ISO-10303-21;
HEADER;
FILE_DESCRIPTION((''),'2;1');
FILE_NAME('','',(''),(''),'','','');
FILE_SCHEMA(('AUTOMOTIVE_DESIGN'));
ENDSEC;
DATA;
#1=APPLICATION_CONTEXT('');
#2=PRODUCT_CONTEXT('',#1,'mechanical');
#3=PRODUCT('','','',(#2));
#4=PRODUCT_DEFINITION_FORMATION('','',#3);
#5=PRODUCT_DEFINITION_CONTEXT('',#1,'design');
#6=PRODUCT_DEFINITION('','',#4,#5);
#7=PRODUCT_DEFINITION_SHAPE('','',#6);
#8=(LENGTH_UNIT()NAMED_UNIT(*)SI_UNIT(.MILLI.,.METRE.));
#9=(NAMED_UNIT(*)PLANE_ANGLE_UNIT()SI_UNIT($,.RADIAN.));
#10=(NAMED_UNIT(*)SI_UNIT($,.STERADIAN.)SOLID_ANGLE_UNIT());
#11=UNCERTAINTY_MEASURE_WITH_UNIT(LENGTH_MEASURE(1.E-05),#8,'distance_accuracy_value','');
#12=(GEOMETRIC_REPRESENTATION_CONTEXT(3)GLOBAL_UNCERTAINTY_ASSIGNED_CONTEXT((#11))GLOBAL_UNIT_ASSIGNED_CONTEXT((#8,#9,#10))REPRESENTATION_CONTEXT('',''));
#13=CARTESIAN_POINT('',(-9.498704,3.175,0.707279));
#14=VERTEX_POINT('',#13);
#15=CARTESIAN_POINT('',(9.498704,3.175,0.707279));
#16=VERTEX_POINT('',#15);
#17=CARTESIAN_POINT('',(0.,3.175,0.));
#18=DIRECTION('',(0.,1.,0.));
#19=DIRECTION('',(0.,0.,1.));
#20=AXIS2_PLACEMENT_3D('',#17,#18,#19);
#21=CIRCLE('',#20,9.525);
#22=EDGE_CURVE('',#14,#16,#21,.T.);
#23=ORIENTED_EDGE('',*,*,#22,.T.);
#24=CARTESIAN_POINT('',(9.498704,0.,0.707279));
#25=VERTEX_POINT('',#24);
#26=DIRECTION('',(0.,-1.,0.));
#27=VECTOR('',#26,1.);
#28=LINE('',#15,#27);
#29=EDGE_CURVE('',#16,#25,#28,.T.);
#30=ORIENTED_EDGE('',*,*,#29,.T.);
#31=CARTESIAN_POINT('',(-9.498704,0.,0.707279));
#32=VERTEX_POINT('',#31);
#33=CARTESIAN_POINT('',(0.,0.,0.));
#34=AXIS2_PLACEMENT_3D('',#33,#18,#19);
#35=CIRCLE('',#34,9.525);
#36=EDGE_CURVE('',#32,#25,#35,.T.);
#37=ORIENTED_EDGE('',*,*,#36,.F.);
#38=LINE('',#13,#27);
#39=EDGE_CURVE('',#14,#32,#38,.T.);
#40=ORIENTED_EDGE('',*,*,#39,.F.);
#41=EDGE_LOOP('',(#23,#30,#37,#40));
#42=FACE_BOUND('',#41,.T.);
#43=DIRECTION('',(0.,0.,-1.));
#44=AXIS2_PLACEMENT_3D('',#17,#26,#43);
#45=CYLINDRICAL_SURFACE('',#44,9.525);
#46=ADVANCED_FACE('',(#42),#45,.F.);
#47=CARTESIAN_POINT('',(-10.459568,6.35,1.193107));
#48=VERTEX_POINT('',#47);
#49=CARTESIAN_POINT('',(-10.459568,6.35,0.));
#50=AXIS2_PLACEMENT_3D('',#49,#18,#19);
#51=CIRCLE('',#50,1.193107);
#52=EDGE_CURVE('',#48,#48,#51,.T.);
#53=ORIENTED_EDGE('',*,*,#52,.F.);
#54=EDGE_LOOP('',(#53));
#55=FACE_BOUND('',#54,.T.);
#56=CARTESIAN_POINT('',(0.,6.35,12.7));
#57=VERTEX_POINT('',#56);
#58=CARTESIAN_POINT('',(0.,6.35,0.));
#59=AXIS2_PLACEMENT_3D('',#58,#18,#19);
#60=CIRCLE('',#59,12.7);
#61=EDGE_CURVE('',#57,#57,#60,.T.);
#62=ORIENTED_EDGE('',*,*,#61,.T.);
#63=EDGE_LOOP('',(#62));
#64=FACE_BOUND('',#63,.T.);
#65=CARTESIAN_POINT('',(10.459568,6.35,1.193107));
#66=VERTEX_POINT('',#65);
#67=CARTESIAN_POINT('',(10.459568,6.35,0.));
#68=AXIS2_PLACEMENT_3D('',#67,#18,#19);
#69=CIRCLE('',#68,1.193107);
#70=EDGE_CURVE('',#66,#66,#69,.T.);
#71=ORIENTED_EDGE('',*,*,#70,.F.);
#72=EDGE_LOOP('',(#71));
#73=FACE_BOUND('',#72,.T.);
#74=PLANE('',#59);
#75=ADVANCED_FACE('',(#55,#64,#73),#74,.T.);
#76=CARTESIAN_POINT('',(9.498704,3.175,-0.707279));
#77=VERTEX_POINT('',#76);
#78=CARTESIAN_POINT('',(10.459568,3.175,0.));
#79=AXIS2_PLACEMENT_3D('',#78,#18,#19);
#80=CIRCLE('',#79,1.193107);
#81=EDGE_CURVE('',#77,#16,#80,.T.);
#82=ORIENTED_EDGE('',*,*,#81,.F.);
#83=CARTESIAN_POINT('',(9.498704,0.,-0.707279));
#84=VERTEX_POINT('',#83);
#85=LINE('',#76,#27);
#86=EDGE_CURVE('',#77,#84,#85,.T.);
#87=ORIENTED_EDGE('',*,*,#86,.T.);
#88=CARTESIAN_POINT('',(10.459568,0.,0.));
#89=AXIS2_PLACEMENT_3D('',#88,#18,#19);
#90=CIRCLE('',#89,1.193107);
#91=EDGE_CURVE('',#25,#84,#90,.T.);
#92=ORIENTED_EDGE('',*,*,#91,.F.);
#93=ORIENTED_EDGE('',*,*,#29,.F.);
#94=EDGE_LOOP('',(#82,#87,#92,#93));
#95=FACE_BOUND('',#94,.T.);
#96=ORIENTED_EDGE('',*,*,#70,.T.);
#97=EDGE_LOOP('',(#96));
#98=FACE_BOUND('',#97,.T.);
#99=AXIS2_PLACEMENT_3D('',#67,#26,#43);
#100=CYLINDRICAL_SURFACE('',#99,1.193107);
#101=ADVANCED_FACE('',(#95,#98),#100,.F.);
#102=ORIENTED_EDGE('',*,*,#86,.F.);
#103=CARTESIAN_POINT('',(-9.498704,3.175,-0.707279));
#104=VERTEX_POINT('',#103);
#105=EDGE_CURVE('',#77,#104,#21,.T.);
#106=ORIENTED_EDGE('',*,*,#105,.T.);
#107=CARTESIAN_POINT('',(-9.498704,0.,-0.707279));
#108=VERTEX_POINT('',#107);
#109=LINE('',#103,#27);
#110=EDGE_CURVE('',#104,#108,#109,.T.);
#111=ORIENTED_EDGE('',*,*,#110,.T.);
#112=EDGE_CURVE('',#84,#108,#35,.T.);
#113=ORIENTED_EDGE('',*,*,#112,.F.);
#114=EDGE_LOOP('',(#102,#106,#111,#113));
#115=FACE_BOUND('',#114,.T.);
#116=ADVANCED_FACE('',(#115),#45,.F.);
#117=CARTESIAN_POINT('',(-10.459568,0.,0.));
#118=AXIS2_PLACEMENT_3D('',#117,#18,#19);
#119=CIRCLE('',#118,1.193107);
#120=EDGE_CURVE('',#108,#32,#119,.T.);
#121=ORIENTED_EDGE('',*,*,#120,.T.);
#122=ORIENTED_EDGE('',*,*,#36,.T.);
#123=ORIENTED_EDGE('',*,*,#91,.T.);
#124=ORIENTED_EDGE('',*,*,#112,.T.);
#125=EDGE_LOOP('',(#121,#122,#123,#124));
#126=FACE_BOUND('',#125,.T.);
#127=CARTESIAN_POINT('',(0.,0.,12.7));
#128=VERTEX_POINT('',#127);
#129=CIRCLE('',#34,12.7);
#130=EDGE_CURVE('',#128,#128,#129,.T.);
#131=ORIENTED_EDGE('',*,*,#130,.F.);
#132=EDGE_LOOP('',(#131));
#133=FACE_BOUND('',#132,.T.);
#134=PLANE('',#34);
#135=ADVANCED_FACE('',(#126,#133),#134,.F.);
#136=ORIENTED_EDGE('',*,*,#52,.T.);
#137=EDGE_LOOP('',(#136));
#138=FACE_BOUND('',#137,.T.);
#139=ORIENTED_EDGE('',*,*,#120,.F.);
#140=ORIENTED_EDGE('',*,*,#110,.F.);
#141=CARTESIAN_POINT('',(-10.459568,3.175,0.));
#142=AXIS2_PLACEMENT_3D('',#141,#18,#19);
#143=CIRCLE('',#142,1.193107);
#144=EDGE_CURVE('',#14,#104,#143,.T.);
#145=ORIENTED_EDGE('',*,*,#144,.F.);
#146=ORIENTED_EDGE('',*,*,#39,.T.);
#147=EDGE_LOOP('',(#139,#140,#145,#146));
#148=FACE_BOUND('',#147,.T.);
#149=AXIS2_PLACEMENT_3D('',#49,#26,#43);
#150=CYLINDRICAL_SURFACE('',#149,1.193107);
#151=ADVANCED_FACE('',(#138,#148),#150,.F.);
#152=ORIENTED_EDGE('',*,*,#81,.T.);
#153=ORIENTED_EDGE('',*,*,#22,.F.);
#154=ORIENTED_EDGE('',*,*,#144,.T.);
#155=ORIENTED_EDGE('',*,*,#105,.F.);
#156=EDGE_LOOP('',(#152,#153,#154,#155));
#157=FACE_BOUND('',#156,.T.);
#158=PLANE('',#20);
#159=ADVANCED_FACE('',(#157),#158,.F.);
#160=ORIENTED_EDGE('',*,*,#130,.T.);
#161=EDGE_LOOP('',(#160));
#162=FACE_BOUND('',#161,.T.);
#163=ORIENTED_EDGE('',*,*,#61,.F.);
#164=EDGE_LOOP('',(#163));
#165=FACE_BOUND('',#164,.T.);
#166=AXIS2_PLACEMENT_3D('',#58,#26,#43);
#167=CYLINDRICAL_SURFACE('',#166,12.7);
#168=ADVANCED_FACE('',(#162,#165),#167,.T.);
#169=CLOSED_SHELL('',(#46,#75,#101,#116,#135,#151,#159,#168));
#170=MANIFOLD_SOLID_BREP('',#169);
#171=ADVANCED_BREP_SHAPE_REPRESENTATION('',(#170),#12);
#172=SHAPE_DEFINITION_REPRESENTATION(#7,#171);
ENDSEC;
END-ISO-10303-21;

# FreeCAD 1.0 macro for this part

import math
import FreeCAD as App
import Part
import Sketcher
from FreeCAD import Vector
Q = App.Units.Quantity

doc = App.newDocument("Part")
body = doc.addObject("PartDesign::Body", "Body")

# Sketch on XZ plane
sketch1 = body.newObject("Sketcher::SketchObject", "Sketch")
sketch1.AttachmentSupport = (doc.getObject("XZ_Plane"), [""])
sketch1.MapMode = "FlatFace"
sketch1.addGeometry(Part.Circle(Vector(0, 0, 0), Vector(0, 0, 1), 13), False)
sketch1.addConstraint([
    Sketcher.Constraint("Coincident", 0, 3, -1, 1),
    Sketcher.Constraint("Diameter", 0, Q("1 in")),
])
pad1 = body.newObject("PartDesign::Pad", "Pad")
pad1.Profile = sketch1
pad1.Length = Q("0.25 in")
pad1.Reversed = True

# Sketch on XZ plane
sketch2 = body.newObject("Sketcher::SketchObject", "Sketch001")
sketch2.AttachmentSupport = (doc.getObject("XZ_Plane"), [""])
sketch2.MapMode = "FlatFace"
sketch2.addGeometry([
    Part.ArcOfCircle(Part.Circle(Vector(10.5, 0, 0), Vector(0, 0, 1), 1.2), math.radians(-180), math.radians(-144)),  # 0
    Part.ArcOfCircle(Part.Circle(Vector(0, 0, 0), Vector(0, 0, 1), 9.5), math.radians(-176), math.radians(-4)),  # 1
    Part.ArcOfCircle(Part.Circle(Vector(-10.5, 0, 0), Vector(0, 0, 1), 1.2), math.radians(-36), math.radians(0)),  # 2
    Part.ArcOfCircle(Part.Circle(Vector(-10.5, 0, 0), Vector(0, 0, 1), 1.2), math.radians(0), math.radians(36)),  # 3
    Part.ArcOfCircle(Part.Circle(Vector(0, 0, 0), Vector(0, 0, 1), 9.5), math.radians(4), math.radians(176)),  # 4
    Part.ArcOfCircle(Part.Circle(Vector(10.5, 0, 0), Vector(0, 0, 1), 1.2), math.radians(144), math.radians(180)),  # 5
], False)
sketch2.addConstraint([
    Sketcher.Constraint("Coincident", 0, 2, 1, 2),
    Sketcher.Constraint("Coincident", 1, 1, 2, 1),
    Sketcher.Constraint("Tangent", 2, 2, 3, 1),
    Sketcher.Constraint("Coincident", 3, 2, 4, 2),
    Sketcher.Constraint("Coincident", 4, 1, 5, 1),
    Sketcher.Constraint("Tangent", 5, 2, 0, 1),
    Sketcher.Constraint("Coincident", 1, 3, -1, 1),
    Sketcher.Constraint("Coincident", 4, 3, -1, 1),
    Sketcher.Constraint("Equal", 0, 2),
    Sketcher.Constraint("Equal", 2, 3),
    Sketcher.Constraint("Equal", 1, 4),
    Sketcher.Constraint("Equal", 3, 5),
    Sketcher.Constraint("Symmetric", 0, 3, 2, 3, -1, 1),
    Sketcher.Constraint("PointOnObject", 0, 3, -1),
    Sketcher.Constraint("PointOnObject", 2, 2, -1),
    Sketcher.Constraint("PointOnObject", 5, 2, -1),
    Sketcher.Constraint("Radius", 1, Q("0.375 in")),
    Sketcher.Constraint("Radius", 0, Q("1.193107 mm")),
    Sketcher.Constraint("DistanceX", -1, 1, 0, 3, Q("10.459568 mm")),
])
pocket1 = body.newObject("PartDesign::Pocket", "Pocket")
pocket1.Profile = sketch2
pocket1.Length = Q("0.125 in")

# Sketch on XZ plane
sketch3 = body.newObject("Sketcher::SketchObject", "Sketch002")
sketch3.AttachmentSupport = (doc.getObject("XZ_Plane"), [""])
sketch3.MapMode = "FlatFace"
sketch3.addGeometry([
    Part.Circle(Vector(-10.5, 0, 0), Vector(0, 0, 1), 1.2),
    Part.Circle(Vector(10.5, 0, 0), Vector(0, 0, 1), 1.2),
], False)
sketch3.addConstraint([
    Sketcher.Constraint("Equal", 0, 1),
    Sketcher.Constraint("Symmetric", 0, 3, 1, 3, -1, 1),
    Sketcher.Constraint("PointOnObject", 0, 3, -1),
    Sketcher.Constraint("Diameter", 0, Q("2.386213 mm")),
    Sketcher.Constraint("DistanceX", 0, 3, -1, 1, Q("10.459568 mm")),
])
pocket2 = body.newObject("PartDesign::Pocket", "Pocket001")
pocket2.Profile = sketch3
pocket2.Type = "ThroughAll"

doc.recompute()
